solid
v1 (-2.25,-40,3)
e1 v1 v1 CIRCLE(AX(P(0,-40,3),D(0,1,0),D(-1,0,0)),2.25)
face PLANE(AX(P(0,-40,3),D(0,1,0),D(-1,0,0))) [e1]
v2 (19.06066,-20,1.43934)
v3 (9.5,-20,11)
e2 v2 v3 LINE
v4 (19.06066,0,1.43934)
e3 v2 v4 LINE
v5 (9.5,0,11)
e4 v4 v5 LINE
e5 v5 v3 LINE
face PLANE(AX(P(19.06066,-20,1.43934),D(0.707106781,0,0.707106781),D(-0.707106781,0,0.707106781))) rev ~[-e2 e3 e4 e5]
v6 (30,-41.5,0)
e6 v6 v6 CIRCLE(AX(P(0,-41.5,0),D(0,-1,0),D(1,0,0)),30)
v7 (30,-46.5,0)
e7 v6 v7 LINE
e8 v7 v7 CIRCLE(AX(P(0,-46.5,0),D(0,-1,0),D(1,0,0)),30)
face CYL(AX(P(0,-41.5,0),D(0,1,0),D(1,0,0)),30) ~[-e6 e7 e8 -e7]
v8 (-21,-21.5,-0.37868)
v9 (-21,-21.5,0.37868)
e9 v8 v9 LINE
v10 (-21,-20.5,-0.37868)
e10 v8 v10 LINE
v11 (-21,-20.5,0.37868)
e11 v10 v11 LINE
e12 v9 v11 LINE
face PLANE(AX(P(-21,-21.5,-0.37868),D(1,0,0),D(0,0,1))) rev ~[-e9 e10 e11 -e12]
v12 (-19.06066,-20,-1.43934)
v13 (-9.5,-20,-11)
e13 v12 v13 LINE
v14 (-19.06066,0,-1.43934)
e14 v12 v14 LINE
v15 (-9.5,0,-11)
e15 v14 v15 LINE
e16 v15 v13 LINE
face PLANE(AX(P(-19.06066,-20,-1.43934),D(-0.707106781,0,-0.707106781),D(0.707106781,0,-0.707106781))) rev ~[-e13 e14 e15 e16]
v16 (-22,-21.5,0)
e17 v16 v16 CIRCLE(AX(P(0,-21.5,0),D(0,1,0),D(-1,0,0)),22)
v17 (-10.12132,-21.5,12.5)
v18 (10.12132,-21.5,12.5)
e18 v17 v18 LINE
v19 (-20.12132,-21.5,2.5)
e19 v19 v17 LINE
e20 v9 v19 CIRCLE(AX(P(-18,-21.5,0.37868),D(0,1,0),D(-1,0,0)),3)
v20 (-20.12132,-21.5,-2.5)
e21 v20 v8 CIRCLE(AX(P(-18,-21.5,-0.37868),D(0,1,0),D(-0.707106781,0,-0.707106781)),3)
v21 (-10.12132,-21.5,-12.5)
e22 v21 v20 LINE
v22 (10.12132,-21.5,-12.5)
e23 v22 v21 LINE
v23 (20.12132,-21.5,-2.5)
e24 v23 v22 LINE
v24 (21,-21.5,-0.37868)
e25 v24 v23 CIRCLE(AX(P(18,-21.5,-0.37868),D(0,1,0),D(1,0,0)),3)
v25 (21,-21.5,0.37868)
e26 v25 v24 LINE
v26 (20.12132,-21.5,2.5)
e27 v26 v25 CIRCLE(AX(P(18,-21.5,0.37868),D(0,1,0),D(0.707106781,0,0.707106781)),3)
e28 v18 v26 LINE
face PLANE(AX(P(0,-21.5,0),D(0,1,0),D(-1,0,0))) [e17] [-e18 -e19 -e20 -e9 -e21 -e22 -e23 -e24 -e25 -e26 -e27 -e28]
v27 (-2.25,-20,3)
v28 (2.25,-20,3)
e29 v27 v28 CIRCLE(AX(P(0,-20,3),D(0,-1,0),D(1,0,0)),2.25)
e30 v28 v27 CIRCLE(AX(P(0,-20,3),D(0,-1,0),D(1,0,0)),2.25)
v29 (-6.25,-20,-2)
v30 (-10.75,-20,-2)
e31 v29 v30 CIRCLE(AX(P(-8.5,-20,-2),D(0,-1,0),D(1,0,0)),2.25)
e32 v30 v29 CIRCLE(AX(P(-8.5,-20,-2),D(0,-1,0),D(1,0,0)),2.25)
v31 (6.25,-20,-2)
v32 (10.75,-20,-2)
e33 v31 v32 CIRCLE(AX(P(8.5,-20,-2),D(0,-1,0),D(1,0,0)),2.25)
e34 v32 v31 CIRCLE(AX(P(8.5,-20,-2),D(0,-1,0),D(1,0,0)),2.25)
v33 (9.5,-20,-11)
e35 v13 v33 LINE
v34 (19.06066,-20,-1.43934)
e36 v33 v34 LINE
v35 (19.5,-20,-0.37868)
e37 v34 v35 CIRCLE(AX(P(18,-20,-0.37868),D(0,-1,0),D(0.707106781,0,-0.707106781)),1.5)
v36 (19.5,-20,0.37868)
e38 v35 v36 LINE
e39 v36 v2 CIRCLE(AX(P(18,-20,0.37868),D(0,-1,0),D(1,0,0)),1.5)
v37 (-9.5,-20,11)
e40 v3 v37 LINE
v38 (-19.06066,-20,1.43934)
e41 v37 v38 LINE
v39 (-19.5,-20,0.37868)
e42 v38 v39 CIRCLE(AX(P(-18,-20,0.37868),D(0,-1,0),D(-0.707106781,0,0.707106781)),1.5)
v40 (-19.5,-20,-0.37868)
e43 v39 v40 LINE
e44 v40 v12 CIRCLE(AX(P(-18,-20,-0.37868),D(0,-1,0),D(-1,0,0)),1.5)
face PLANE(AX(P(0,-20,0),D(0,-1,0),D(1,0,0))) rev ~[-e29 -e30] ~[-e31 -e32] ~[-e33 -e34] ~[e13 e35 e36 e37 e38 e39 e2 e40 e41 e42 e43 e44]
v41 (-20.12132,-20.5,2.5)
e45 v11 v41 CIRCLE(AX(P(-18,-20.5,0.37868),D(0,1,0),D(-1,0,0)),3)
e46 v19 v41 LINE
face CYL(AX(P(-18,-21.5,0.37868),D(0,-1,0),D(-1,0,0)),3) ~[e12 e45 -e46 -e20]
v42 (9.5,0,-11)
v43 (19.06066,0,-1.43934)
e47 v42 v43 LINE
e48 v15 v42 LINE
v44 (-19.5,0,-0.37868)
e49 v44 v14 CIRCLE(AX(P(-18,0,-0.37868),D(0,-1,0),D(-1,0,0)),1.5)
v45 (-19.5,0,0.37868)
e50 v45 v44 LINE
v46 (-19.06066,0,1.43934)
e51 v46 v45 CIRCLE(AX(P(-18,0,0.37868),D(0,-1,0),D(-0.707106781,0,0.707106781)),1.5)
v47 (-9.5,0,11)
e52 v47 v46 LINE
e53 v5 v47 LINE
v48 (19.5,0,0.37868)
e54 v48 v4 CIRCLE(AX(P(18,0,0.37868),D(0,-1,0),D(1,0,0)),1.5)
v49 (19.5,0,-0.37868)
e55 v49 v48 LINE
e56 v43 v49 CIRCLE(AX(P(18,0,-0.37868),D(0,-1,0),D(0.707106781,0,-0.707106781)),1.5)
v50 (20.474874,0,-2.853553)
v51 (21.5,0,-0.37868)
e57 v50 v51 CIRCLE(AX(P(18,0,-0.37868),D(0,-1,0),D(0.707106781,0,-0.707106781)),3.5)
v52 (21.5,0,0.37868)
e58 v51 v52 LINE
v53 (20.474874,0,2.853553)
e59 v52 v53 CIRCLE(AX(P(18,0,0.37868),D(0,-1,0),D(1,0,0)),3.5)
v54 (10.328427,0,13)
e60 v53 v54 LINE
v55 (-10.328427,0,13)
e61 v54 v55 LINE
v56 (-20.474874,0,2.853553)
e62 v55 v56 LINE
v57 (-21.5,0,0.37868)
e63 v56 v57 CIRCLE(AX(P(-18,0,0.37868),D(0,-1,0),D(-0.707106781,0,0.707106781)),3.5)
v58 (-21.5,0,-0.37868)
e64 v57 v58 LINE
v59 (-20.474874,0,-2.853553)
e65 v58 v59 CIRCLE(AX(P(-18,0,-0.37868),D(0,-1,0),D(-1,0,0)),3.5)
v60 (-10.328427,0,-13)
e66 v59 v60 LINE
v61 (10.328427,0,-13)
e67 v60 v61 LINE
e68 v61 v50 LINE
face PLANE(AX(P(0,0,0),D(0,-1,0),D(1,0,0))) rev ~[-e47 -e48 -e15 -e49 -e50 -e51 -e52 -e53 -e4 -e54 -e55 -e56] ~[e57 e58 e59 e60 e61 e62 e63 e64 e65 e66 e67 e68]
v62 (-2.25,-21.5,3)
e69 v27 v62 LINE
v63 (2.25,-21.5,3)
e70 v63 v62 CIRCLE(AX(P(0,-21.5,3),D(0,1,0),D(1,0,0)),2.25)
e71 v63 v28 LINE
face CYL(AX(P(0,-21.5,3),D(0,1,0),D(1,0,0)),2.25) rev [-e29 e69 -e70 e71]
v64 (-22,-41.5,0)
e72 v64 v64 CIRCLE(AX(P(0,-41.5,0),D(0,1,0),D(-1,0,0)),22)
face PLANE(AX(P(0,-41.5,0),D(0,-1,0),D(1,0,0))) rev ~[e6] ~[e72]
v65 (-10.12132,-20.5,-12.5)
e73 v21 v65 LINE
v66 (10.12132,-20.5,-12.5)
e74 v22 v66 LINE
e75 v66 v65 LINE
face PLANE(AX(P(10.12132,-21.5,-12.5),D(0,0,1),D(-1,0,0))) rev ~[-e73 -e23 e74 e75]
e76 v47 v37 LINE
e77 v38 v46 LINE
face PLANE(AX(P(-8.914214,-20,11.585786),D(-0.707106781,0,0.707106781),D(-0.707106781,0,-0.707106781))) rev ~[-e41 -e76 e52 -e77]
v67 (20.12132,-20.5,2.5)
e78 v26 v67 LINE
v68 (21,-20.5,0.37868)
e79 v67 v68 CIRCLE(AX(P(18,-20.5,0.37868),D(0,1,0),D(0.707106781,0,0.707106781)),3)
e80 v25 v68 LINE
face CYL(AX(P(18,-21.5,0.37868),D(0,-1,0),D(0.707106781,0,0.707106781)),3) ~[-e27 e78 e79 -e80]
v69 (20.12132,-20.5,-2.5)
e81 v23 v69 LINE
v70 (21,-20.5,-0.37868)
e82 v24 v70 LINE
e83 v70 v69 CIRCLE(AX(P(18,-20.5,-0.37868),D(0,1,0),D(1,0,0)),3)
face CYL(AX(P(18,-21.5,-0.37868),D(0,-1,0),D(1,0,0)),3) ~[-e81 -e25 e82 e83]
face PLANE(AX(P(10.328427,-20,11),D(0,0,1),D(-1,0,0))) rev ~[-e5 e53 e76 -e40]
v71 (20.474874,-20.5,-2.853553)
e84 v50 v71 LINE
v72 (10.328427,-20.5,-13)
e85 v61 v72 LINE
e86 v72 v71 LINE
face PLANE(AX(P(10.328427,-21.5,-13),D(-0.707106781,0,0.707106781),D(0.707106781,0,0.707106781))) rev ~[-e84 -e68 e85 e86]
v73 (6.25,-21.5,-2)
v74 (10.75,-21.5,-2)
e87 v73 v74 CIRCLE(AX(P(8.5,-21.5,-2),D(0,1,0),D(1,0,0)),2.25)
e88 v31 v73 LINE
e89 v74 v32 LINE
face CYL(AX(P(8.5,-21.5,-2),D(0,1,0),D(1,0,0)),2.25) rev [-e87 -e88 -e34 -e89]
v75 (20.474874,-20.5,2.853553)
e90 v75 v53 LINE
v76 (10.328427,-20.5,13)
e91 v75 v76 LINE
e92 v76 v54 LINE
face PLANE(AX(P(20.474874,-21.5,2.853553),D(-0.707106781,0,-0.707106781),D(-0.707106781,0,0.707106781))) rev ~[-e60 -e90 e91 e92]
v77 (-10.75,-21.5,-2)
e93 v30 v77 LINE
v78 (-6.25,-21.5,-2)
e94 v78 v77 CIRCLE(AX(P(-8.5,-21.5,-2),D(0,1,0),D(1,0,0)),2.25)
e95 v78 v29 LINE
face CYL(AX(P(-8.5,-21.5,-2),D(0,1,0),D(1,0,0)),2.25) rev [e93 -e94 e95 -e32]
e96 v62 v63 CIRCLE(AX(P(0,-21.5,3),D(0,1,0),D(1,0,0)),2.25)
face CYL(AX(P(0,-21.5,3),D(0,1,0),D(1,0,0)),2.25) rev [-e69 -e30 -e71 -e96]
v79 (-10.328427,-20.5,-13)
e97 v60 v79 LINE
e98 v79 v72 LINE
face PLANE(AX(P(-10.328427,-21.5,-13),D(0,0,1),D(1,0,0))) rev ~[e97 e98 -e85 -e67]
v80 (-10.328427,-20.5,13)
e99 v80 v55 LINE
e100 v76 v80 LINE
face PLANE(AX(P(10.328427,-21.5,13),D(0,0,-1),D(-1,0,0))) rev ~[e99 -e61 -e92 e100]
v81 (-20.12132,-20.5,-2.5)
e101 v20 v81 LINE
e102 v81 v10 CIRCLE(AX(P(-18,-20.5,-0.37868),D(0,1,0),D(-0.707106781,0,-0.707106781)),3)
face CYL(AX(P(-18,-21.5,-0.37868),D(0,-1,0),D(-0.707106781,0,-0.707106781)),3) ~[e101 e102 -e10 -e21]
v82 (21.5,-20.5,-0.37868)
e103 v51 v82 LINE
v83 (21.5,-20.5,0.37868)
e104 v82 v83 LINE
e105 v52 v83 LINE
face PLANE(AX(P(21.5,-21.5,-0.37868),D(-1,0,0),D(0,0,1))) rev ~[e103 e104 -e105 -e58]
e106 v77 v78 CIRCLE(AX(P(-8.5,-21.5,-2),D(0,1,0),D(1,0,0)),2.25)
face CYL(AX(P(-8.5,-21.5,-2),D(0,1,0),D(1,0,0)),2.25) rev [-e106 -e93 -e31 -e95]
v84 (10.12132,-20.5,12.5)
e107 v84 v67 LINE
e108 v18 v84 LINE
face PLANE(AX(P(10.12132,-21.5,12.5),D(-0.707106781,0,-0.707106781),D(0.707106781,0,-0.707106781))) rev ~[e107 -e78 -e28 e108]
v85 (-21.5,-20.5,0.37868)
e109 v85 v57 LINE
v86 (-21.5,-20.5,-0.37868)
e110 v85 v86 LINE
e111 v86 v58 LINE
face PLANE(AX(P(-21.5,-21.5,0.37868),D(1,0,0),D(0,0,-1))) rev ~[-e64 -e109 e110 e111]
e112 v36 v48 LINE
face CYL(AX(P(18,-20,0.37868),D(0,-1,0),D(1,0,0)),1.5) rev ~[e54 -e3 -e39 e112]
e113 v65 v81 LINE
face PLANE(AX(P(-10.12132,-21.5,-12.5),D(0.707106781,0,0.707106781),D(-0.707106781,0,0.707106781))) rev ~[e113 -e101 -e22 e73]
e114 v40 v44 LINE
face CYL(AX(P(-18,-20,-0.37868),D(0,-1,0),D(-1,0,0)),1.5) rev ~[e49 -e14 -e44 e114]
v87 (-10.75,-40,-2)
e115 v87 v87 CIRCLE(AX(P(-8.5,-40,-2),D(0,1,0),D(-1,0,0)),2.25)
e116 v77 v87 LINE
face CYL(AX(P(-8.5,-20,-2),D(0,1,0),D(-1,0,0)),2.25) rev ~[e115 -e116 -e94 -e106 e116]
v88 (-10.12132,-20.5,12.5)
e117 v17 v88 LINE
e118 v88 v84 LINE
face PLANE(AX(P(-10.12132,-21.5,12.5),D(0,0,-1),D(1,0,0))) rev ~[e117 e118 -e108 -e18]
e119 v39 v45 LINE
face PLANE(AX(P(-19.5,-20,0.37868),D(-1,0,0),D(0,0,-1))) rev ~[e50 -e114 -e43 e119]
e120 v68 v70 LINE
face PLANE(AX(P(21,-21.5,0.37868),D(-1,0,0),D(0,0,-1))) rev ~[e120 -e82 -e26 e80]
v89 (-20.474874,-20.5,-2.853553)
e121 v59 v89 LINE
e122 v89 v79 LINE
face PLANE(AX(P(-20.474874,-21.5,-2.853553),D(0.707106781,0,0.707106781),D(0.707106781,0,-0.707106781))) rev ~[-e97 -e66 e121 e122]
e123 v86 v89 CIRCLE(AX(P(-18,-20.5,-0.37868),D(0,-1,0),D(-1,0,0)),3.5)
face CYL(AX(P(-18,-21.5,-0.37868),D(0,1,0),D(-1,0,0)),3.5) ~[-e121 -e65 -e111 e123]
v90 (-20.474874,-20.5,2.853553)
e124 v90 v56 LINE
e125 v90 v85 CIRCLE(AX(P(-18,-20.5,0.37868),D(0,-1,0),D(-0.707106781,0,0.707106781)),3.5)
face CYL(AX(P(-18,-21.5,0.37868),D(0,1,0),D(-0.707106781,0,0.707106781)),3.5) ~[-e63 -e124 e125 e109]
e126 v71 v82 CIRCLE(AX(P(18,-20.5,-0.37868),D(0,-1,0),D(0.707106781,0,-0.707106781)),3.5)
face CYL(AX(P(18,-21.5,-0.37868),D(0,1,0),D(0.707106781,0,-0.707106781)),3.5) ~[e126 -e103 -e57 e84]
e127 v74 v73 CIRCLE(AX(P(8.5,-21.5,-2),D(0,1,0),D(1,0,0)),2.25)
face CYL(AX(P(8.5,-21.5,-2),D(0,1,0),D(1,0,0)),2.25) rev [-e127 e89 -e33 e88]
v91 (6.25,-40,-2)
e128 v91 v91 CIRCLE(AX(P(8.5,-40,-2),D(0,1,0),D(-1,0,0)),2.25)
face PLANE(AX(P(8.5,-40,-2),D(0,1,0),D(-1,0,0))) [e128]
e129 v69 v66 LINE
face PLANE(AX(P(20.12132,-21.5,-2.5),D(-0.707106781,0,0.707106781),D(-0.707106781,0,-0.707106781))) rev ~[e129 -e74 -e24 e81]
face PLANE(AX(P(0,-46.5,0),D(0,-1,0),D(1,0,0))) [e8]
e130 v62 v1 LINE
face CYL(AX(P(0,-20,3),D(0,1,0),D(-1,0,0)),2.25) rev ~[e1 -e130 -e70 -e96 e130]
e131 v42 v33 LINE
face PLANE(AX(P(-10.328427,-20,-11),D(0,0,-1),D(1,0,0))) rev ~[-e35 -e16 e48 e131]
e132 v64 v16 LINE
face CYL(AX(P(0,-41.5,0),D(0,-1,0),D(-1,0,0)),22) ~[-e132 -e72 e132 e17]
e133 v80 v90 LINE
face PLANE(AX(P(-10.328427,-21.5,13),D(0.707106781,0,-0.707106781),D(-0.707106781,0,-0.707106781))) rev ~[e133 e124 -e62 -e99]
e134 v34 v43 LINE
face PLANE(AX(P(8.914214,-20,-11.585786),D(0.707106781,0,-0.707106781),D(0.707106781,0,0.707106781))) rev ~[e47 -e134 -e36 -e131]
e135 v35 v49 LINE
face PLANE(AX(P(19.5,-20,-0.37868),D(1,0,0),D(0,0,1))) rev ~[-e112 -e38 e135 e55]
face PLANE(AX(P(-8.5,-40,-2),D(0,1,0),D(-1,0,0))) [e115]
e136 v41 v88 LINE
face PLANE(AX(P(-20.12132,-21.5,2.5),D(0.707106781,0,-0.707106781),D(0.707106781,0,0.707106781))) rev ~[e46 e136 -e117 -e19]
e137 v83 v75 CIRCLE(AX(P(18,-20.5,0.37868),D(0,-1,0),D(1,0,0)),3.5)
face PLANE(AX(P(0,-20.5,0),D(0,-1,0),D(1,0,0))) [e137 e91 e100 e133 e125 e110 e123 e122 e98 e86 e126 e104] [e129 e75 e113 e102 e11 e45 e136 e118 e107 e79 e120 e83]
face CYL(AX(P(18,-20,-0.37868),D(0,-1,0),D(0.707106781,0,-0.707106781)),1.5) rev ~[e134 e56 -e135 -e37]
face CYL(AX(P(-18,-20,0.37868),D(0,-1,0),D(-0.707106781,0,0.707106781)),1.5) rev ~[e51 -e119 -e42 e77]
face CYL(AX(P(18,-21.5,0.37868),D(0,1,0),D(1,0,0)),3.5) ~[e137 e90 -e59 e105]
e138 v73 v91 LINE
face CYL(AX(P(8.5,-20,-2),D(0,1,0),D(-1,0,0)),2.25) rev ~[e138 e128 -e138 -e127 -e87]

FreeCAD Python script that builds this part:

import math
import FreeCAD as App
import Part
import Sketcher

V = App.Vector
Q = App.Units.Quantity


def edges_at(feature, points):
    """Names of the edges that pass closest to the given points."""
    edges = feature.Shape.Edges
    near = lambda p: min(range(len(edges)), key=lambda i: edges[i].distToShape(Part.Vertex(*p))[0])
    return sorted({f"Edge{near(p) + 1}" for p in points})


def faces_at(feature, points):
    """Names of the faces that lie closest to the given points."""
    faces = feature.Shape.Faces
    near = lambda p: min(range(len(faces)), key=lambda i: faces[i].distToShape(Part.Vertex(*p))[0])
    return sorted({f"Face{near(p) + 1}" for p in points})


def add_polygon(sketch, points):
    """Adds a closed chain of lines whose ends are joined by coincident constraints."""
    first, n = sketch.GeometryCount, len(points)
    for a, b in zip(points, points[1:] + points[:1]):
        sketch.addGeometry(Part.LineSegment(App.Vector(*a, 0), App.Vector(*b, 0)), False)
    for i in range(n):
        sketch.addConstraint(Sketcher.Constraint("Coincident", first + i, 2, first + (i + 1) % n, 1))

doc = App.newDocument("Part")
body = doc.addObject("PartDesign::Body", "Body")

# Sketch on XZ plane
sketch1 = body.newObject("Sketcher::SketchObject", "Sketch")
sketch1.AttachmentSupport = (doc.getObject("XZ_Plane"), [""])
sketch1.MapMode = "FlatFace"
add_polygon(sketch1, [(-20, 11), (-20, -11), (20, -11), (20, 11)])  # lines 0-3
sketch1.addConstraint(Sketcher.Constraint("Vertical", 0))
sketch1.addConstraint(Sketcher.Constraint("Horizontal", 1))
sketch1.addConstraint(Sketcher.Constraint("Vertical", 2))
sketch1.addConstraint(Sketcher.Constraint("Horizontal", 3))
sketch1.addConstraint(Sketcher.Constraint("Symmetric", 0, 2, 2, 2, -1, 1))
sketch1.addConstraint(Sketcher.Constraint("DistanceX", 1, 1, 1, 2, Q("39 mm")))
sketch1.addConstraint(Sketcher.Constraint("DistanceY", 0, 2, 0, 1, Q("22 mm")))
pad1 = body.newObject("PartDesign::Pad", "Pad")
pad1.Profile = sketch1
pad1.Length = 20
doc.recompute()

chamfer = body.newObject("PartDesign::Chamfer", "Chamfer")
chamfer.Base = (pad1, edges_at(pad1, [
    (19.5, -10, 11),
    (-19.5, -10, 11),
    (19.5, -10, -11),
    (-19.5, -10, -11),
]))
chamfer.Size = 10
doc.recompute()

fillet = body.newObject("PartDesign::Fillet", "Fillet")
fillet.Base = (chamfer, edges_at(chamfer, [
    (19.5, -10, -1),
    (-19.5, -10, 1),
    (-19.5, -10, -1),
    (19.5, -10, 1),
]))
fillet.Radius = 1.5

# Sketch on XZ plane
sketch2 = body.newObject("Sketcher::SketchObject", "Sketch001")
sketch2.AttachmentSupport = (doc.getObject("XZ_Plane"), [""])
sketch2.MapMode = "FlatFace"
sketch2.AttachmentOffset = App.Placement(V(0, 0, 20), App.Rotation())
sketch2.addGeometry(Part.ArcOfCircle(Part.Circle(V(-18, 0.4, 0), V(0, 0, 1), 3.5), math.radians(135), math.radians(180)), False)
sketch2.addGeometry(Part.LineSegment(V(-21.5, 0.4, 0), V(-21.5, -0.4, 0)), False)
sketch2.addGeometry(Part.ArcOfCircle(Part.Circle(V(-18, -0.4, 0), V(0, 0, 1), 3.5), math.radians(180), math.radians(225)), False)
sketch2.addGeometry(Part.LineSegment(V(-20.5, -2.9, 0), V(-10.3, -13, 0)), False)
sketch2.addGeometry(Part.LineSegment(V(-10.3, -13, 0), V(10.3, -13, 0)), False)
sketch2.addGeometry(Part.LineSegment(V(10.3, -13, 0), V(20.5, -2.9, 0)), False)
sketch2.addGeometry(Part.ArcOfCircle(Part.Circle(V(18, -0.4, 0), V(0, 0, 1), 3.5), math.radians(-45), math.radians(0)), False)
sketch2.addGeometry(Part.LineSegment(V(21.5, -0.4, 0), V(21.5, 0.4, 0)), False)
sketch2.addGeometry(Part.ArcOfCircle(Part.Circle(V(18, 0.4, 0), V(0, 0, 1), 3.5), math.radians(0), math.radians(45)), False)
sketch2.addGeometry(Part.LineSegment(V(20.5, 2.9, 0), V(10.3, 13, 0)), False)
sketch2.addGeometry(Part.LineSegment(V(10.3, 13, 0), V(-10.3, 13, 0)), False)
sketch2.addGeometry(Part.LineSegment(V(-10.3, 13, 0), V(-20.5, 2.9, 0)), False)
sketch2.addConstraint(Sketcher.Constraint("Tangent", 0, 2, 1, 1))
sketch2.addConstraint(Sketcher.Constraint("Tangent", 1, 2, 2, 1))
sketch2.addConstraint(Sketcher.Constraint("Tangent", 2, 2, 3, 1))
sketch2.addConstraint(Sketcher.Constraint("Coincident", 3, 2, 4, 1))
sketch2.addConstraint(Sketcher.Constraint("Coincident", 4, 2, 5, 1))
sketch2.addConstraint(Sketcher.Constraint("Tangent", 5, 2, 6, 1))
sketch2.addConstraint(Sketcher.Constraint("Tangent", 6, 2, 7, 1))
sketch2.addConstraint(Sketcher.Constraint("Tangent", 7, 2, 8, 1))
sketch2.addConstraint(Sketcher.Constraint("Tangent", 8, 2, 9, 1))
sketch2.addConstraint(Sketcher.Constraint("Coincident", 9, 2, 10, 1))
sketch2.addConstraint(Sketcher.Constraint("Coincident", 10, 2, 11, 1))
sketch2.addConstraint(Sketcher.Constraint("Tangent", 11, 2, 0, 1))
sketch2.addConstraint(Sketcher.Constraint("Vertical", 1))
sketch2.addConstraint(Sketcher.Constraint("Horizontal", 4))
sketch2.addConstraint(Sketcher.Constraint("Vertical", 7))
sketch2.addConstraint(Sketcher.Constraint("Horizontal", 10))
sketch2.addConstraint(Sketcher.Constraint("Equal", 0, 2))
sketch2.addConstraint(Sketcher.Constraint("Equal", 2, 6))
sketch2.addConstraint(Sketcher.Constraint("Equal", 6, 8))
sketch2.addConstraint(Sketcher.Constraint("Symmetric", 0, 3, 6, 3, -1, 1))
sketch2.addConstraint(Sketcher.Constraint("Symmetric", 2, 2, 8, 2, -1, 1))
sketch2.addConstraint(Sketcher.Constraint("Symmetric", 4, 2, 10, 2, -1, 1))
sketch2.addConstraint(Sketcher.Constraint("Symmetric", 2, 2, 5, 2, -2))
sketch2.addConstraint(Sketcher.Constraint("Perpendicular", 3, 5))
sketch2.addConstraint(Sketcher.Constraint("Radius", 0, Q("3.5 mm")))
sketch2.addConstraint(Sketcher.Constraint("DistanceX", 0, 3, -1, 1, Q("18 mm")))
sketch2.addConstraint(Sketcher.Constraint("DistanceY", 3, 2, -1, 1, Q("13 mm")))
sketch2.addConstraint(Sketcher.Constraint("DistanceY", 1, 2, 1, 1, Q("0.757359 mm")))
pad2 = body.newObject("PartDesign::Pad", "Pad001")
pad2.Profile = sketch2
pad2.Type = "UpToLast"
pad2.Reversed = True
doc.recompute()

thickness = body.newObject("PartDesign::Thickness", "Thickness")
thickness.Base = (pad2, faces_at(pad2, [(0, -20, 0), (0, 0, 0)]))
thickness.Value = 2
thickness.Reversed = True
thickness.Join = "Arc"

# Sketch on XZ plane
sketch3 = body.newObject("Sketcher::SketchObject", "Sketch002")
sketch3.AttachmentSupport = (doc.getObject("XZ_Plane"), [""])
sketch3.MapMode = "FlatFace"
sketch3.AttachmentOffset = App.Placement(V(0, 0, 20), App.Rotation())
sketch3.addGeometry(Part.LineSegment(V(10.3, 13, 0), V(-10.3, 13, 0)), False)
sketch3.addGeometry(Part.LineSegment(V(-10.3, 13, 0), V(-20.5, 2.9, 0)), False)
sketch3.addGeometry(Part.ArcOfCircle(Part.Circle(V(-18, 0.4, 0), V(0, 0, 1), 3.5), math.radians(135), math.radians(180)), False)
sketch3.addGeometry(Part.LineSegment(V(-21.5, 0.4, 0), V(-21.5, -0.4, 0)), False)
sketch3.addGeometry(Part.ArcOfCircle(Part.Circle(V(-18, -0.4, 0), V(0, 0, 1), 3.5), math.radians(180), math.radians(225)), False)
sketch3.addGeometry(Part.LineSegment(V(-20.5, -2.9, 0), V(-10.3, -13, 0)), False)
sketch3.addGeometry(Part.LineSegment(V(-10.3, -13, 0), V(10.3, -13, 0)), False)
sketch3.addGeometry(Part.LineSegment(V(10.3, -13, 0), V(20.5, -2.9, 0)), False)
sketch3.addGeometry(Part.ArcOfCircle(Part.Circle(V(18, -0.4, 0), V(0, 0, 1), 3.5), math.radians(-45), math.radians(0)), False)
sketch3.addGeometry(Part.LineSegment(V(21.5, -0.4, 0), V(21.5, 0.4, 0)), False)
sketch3.addGeometry(Part.ArcOfCircle(Part.Circle(V(18, 0.4, 0), V(0, 0, 1), 3.5), math.radians(0), math.radians(45)), False)
sketch3.addGeometry(Part.LineSegment(V(20.5, 2.9, 0), V(10.3, 13, 0)), False)
sketch3.addGeometry(Part.Circle(V(-8.5, -2, 0), V(0, 0, 1), 2.2), False)
sketch3.addGeometry(Part.Circle(V(8.5, -2, 0), V(0, 0, 1), 2.2), False)
sketch3.addGeometry(Part.Circle(V(0, 3, 0), V(0, 0, 1), 2.2), False)
sketch3.addConstraint(Sketcher.Constraint("Coincident", 0, 2, 1, 1))
sketch3.addConstraint(Sketcher.Constraint("Tangent", 1, 2, 2, 1))
sketch3.addConstraint(Sketcher.Constraint("Tangent", 2, 2, 3, 1))
sketch3.addConstraint(Sketcher.Constraint("Tangent", 3, 2, 4, 1))
sketch3.addConstraint(Sketcher.Constraint("Tangent", 4, 2, 5, 1))
sketch3.addConstraint(Sketcher.Constraint("Coincident", 5, 2, 6, 1))
sketch3.addConstraint(Sketcher.Constraint("Coincident", 6, 2, 7, 1))
sketch3.addConstraint(Sketcher.Constraint("Tangent", 7, 2, 8, 1))
sketch3.addConstraint(Sketcher.Constraint("Tangent", 8, 2, 9, 1))
sketch3.addConstraint(Sketcher.Constraint("Tangent", 9, 2, 10, 1))
sketch3.addConstraint(Sketcher.Constraint("Tangent", 10, 2, 11, 1))
sketch3.addConstraint(Sketcher.Constraint("Coincident", 11, 2, 0, 1))
sketch3.addConstraint(Sketcher.Constraint("Horizontal", 0))
sketch3.addConstraint(Sketcher.Constraint("Vertical", 3))
sketch3.addConstraint(Sketcher.Constraint("Horizontal", 6))
sketch3.addConstraint(Sketcher.Constraint("Vertical", 9))
sketch3.addConstraint(Sketcher.Constraint("Equal", 2, 4))
sketch3.addConstraint(Sketcher.Constraint("Equal", 4, 8))
sketch3.addConstraint(Sketcher.Constraint("Equal", 8, 10))
sketch3.addConstraint(Sketcher.Constraint("Equal", 12, 13))
sketch3.addConstraint(Sketcher.Constraint("Equal", 13, 14))
sketch3.addConstraint(Sketcher.Constraint("Symmetric", 2, 3, 8, 3, -1, 1))
sketch3.addConstraint(Sketcher.Constraint("Symmetric", 0, 2, 6, 2, -1, 1))
sketch3.addConstraint(Sketcher.Constraint("Symmetric", 4, 2, 10, 2, -1, 1))
sketch3.addConstraint(Sketcher.Constraint("Symmetric", 12, 3, 13, 3, -2))
sketch3.addConstraint(Sketcher.Constraint("Symmetric", 4, 2, 7, 2, -2))
sketch3.addConstraint(Sketcher.Constraint("PointOnObject", 14, 3, -2))
sketch3.addConstraint(Sketcher.Constraint("Perpendicular", 1, 5))
sketch3.addConstraint(Sketcher.Constraint("Diameter", 12, Q("4.5 mm")))
sketch3.addConstraint(Sketcher.Constraint("Radius", 2, Q("3.5 mm")))
sketch3.addConstraint(Sketcher.Constraint("DistanceX", 2, 3, -1, 1, Q("18 mm")))
sketch3.addConstraint(Sketcher.Constraint("DistanceY", 12, 3, -1, 1, Q("2 mm")))
sketch3.addConstraint(Sketcher.Constraint("DistanceY", -1, 1, 14, 3, Q("3 mm")))
sketch3.addConstraint(Sketcher.Constraint("DistanceY", -1, 1, 0, 2, Q("13 mm")))
sketch3.addConstraint(Sketcher.Constraint("DistanceX", 12, 3, 13, 3, Q("17 mm")))
sketch3.addConstraint(Sketcher.Constraint("DistanceY", 3, 2, 3, 1, Q("0.757359 mm")))
pad3 = body.newObject("PartDesign::Pad", "Pad002")
pad3.Profile = sketch3
pad3.Length = 1.5

# Sketch on XZ plane
sketch4 = body.newObject("Sketcher::SketchObject", "Sketch003")
sketch4.AttachmentSupport = (doc.getObject("XZ_Plane"), [""])
sketch4.MapMode = "FlatFace"
sketch4.AttachmentOffset = App.Placement(V(0, 0, 21.5), App.Rotation())
sketch4.addGeometry(Part.ArcOfCircle(Part.Circle(V(-18, -0.4, 0), V(0, 0, 1), 3.5), math.radians(180), math.radians(225)), False)
sketch4.addGeometry(Part.LineSegment(V(-20.5, -2.9, 0), V(-10.3, -13, 0)), False)
sketch4.addGeometry(Part.LineSegment(V(-10.3, -13, 0), V(10.3, -13, 0)), False)
sketch4.addGeometry(Part.LineSegment(V(10.3, -13, 0), V(20.5, -2.9, 0)), False)
sketch4.addGeometry(Part.ArcOfCircle(Part.Circle(V(18, -0.4, 0), V(0, 0, 1), 3.5), math.radians(-45), math.radians(0)), False)
sketch4.addGeometry(Part.LineSegment(V(21.5, -0.4, 0), V(21.5, 0.4, 0)), False)
sketch4.addGeometry(Part.ArcOfCircle(Part.Circle(V(18, 0.4, 0), V(0, 0, 1), 3.5), math.radians(0), math.radians(45)), False)
sketch4.addGeometry(Part.LineSegment(V(20.5, 2.9, 0), V(10.3, 13, 0)), False)
sketch4.addGeometry(Part.LineSegment(V(10.3, 13, 0), V(-10.3, 13, 0)), False)
sketch4.addGeometry(Part.LineSegment(V(-10.3, 13, 0), V(-20.5, 2.9, 0)), False)
sketch4.addGeometry(Part.ArcOfCircle(Part.Circle(V(-18, 0.4, 0), V(0, 0, 1), 3.5), math.radians(135), math.radians(180)), False)
sketch4.addGeometry(Part.LineSegment(V(-21.5, 0.4, 0), V(-21.5, -0.4, 0)), False)
sketch4.addGeometry(Part.Circle(V(-8.5, -2, 0), V(0, 0, 1), 2.2), False)
sketch4.addGeometry(Part.Circle(V(8.5, -2, 0), V(0, 0, 1), 2.2), False)
sketch4.addGeometry(Part.Circle(V(0, 3, 0), V(0, 0, 1), 2.2), False)
sketch4.addConstraint(Sketcher.Constraint("Tangent", 0, 2, 1, 1))
sketch4.addConstraint(Sketcher.Constraint("Coincident", 1, 2, 2, 1))
sketch4.addConstraint(Sketcher.Constraint("Coincident", 2, 2, 3, 1))
sketch4.addConstraint(Sketcher.Constraint("Tangent", 3, 2, 4, 1))
sketch4.addConstraint(Sketcher.Constraint("Tangent", 4, 2, 5, 1))
sketch4.addConstraint(Sketcher.Constraint("Tangent", 5, 2, 6, 1))
sketch4.addConstraint(Sketcher.Constraint("Tangent", 6, 2, 7, 1))
sketch4.addConstraint(Sketcher.Constraint("Coincident", 7, 2, 8, 1))
sketch4.addConstraint(Sketcher.Constraint("Coincident", 8, 2, 9, 1))
sketch4.addConstraint(Sketcher.Constraint("Tangent", 9, 2, 10, 1))
sketch4.addConstraint(Sketcher.Constraint("Tangent", 10, 2, 11, 1))
sketch4.addConstraint(Sketcher.Constraint("Tangent", 11, 2, 0, 1))
sketch4.addConstraint(Sketcher.Constraint("Horizontal", 2))
sketch4.addConstraint(Sketcher.Constraint("Vertical", 5))
sketch4.addConstraint(Sketcher.Constraint("Horizontal", 8))
sketch4.addConstraint(Sketcher.Constraint("Vertical", 11))
sketch4.addConstraint(Sketcher.Constraint("Equal", 0, 4))
sketch4.addConstraint(Sketcher.Constraint("Equal", 4, 6))
sketch4.addConstraint(Sketcher.Constraint("Equal", 6, 10))
sketch4.addConstraint(Sketcher.Constraint("Equal", 12, 13))
sketch4.addConstraint(Sketcher.Constraint("Equal", 13, 14))
sketch4.addConstraint(Sketcher.Constraint("Symmetric", 0, 3, 6, 3, -1, 1))
sketch4.addConstraint(Sketcher.Constraint("Symmetric", 1, 2, 7, 2, -1, 1))
sketch4.addConstraint(Sketcher.Constraint("Symmetric", 3, 2, 9, 2, -1, 1))
sketch4.addConstraint(Sketcher.Constraint("Symmetric", 12, 3, 13, 3, -2))
sketch4.addConstraint(Sketcher.Constraint("Symmetric", 0, 2, 3, 2, -2))
sketch4.addConstraint(Sketcher.Constraint("PointOnObject", 14, 3, -2))
sketch4.addConstraint(Sketcher.Constraint("Perpendicular", 1, 3))
sketch4.addConstraint(Sketcher.Constraint("Diameter", 12, Q("4.5 mm")))
sketch4.addConstraint(Sketcher.Constraint("Radius", 0, Q("3.5 mm")))
sketch4.addConstraint(Sketcher.Constraint("DistanceX", 0, 3, -1, 1, Q("18 mm")))
sketch4.addConstraint(Sketcher.Constraint("DistanceY", 12, 3, -1, 1, Q("2 mm")))
sketch4.addConstraint(Sketcher.Constraint("DistanceY", -1, 1, 14, 3, Q("3 mm")))
sketch4.addConstraint(Sketcher.Constraint("DistanceY", 1, 2, -1, 1, Q("13 mm")))
sketch4.addConstraint(Sketcher.Constraint("DistanceX", 12, 3, 13, 3, Q("17 mm")))
sketch4.addConstraint(Sketcher.Constraint("DistanceY", 5, 1, 5, 2, Q("0.757359 mm")))
pad4 = body.newObject("PartDesign::Pad", "Pad003")
pad4.Profile = sketch4
pad4.Length = 20

# Sketch on XZ plane
sketch5 = body.newObject("Sketcher::SketchObject", "Sketch004")
sketch5.AttachmentSupport = (doc.getObject("XZ_Plane"), [""])
sketch5.MapMode = "FlatFace"
sketch5.AttachmentOffset = App.Placement(V(0, 0, 21.5), App.Rotation())
sketch5.addGeometry(Part.LineSegment(V(20.5, 2.9, 0), V(10.3, 13, 0)), False)
sketch5.addGeometry(Part.LineSegment(V(10.3, 13, 0), V(-10.3, 13, 0)), False)
sketch5.addGeometry(Part.LineSegment(V(-10.3, 13, 0), V(-20.5, 2.9, 0)), False)
sketch5.addGeometry(Part.ArcOfCircle(Part.Circle(V(-18, 0.4, 0), V(0, 0, 1), 3.5), math.radians(135), math.radians(180)), False)
sketch5.addGeometry(Part.LineSegment(V(-21.5, 0.4, 0), V(-21.5, -0.4, 0)), False)
sketch5.addGeometry(Part.ArcOfCircle(Part.Circle(V(-18, -0.4, 0), V(0, 0, 1), 3.5), math.radians(180), math.radians(225)), False)
sketch5.addGeometry(Part.LineSegment(V(-20.5, -2.9, 0), V(-10.3, -13, 0)), False)
sketch5.addGeometry(Part.LineSegment(V(-10.3, -13, 0), V(10.3, -13, 0)), False)
sketch5.addGeometry(Part.LineSegment(V(10.3, -13, 0), V(20.5, -2.9, 0)), False)
sketch5.addGeometry(Part.ArcOfCircle(Part.Circle(V(18, -0.4, 0), V(0, 0, 1), 3.5), math.radians(-45), math.radians(0)), False)
sketch5.addGeometry(Part.LineSegment(V(21.5, -0.4, 0), V(21.5, 0.4, 0)), False)
sketch5.addGeometry(Part.ArcOfCircle(Part.Circle(V(18, 0.4, 0), V(0, 0, 1), 3.5), math.radians(0), math.radians(45)), False)
sketch5.addGeometry(Part.LineSegment(V(-20.1, 2.5, 0), V(-10.1, 12.5, 0)), False)
sketch5.addGeometry(Part.LineSegment(V(-10.1, 12.5, 0), V(10.1, 12.5, 0)), False)
sketch5.addGeometry(Part.LineSegment(V(10.1, 12.5, 0), V(20.1, 2.5, 0)), False)
sketch5.addGeometry(Part.ArcOfCircle(Part.Circle(V(18, 0.4, 0), V(0, 0, 1), 3), math.radians(0), math.radians(45)), False)
sketch5.addGeometry(Part.LineSegment(V(21, 0.4, 0), V(21, -0.4, 0)), False)
sketch5.addGeometry(Part.ArcOfCircle(Part.Circle(V(18, -0.4, 0), V(0, 0, 1), 3), math.radians(-45), math.radians(0)), False)
sketch5.addGeometry(Part.LineSegment(V(20.1, -2.5, 0), V(10.1, -12.5, 0)), False)
sketch5.addGeometry(Part.LineSegment(V(10.1, -12.5, 0), V(-10.1, -12.5, 0)), False)
sketch5.addGeometry(Part.LineSegment(V(-10.1, -12.5, 0), V(-20.1, -2.5, 0)), False)
sketch5.addGeometry(Part.ArcOfCircle(Part.Circle(V(-18, -0.4, 0), V(0, 0, 1), 3), math.radians(180), math.radians(225)), False)
sketch5.addGeometry(Part.LineSegment(V(-21, -0.4, 0), V(-21, 0.4, 0)), False)
sketch5.addGeometry(Part.ArcOfCircle(Part.Circle(V(-18, 0.4, 0), V(0, 0, 1), 3), math.radians(135), math.radians(180)), False)
sketch5.addConstraint(Sketcher.Constraint("Coincident", 0, 2, 1, 1))
sketch5.addConstraint(Sketcher.Constraint("Coincident", 1, 2, 2, 1))
sketch5.addConstraint(Sketcher.Constraint("Tangent", 2, 2, 3, 1))
sketch5.addConstraint(Sketcher.Constraint("Tangent", 3, 2, 4, 1))
sketch5.addConstraint(Sketcher.Constraint("Tangent", 4, 2, 5, 1))
sketch5.addConstraint(Sketcher.Constraint("Tangent", 5, 2, 6, 1))
sketch5.addConstraint(Sketcher.Constraint("Coincident", 6, 2, 7, 1))
sketch5.addConstraint(Sketcher.Constraint("Coincident", 7, 2, 8, 1))
sketch5.addConstraint(Sketcher.Constraint("Tangent", 8, 2, 9, 1))
sketch5.addConstraint(Sketcher.Constraint("Tangent", 9, 2, 10, 1))
sketch5.addConstraint(Sketcher.Constraint("Tangent", 10, 2, 11, 1))
sketch5.addConstraint(Sketcher.Constraint("Tangent", 11, 2, 0, 1))
sketch5.addConstraint(Sketcher.Constraint("Coincident", 12, 2, 13, 1))
sketch5.addConstraint(Sketcher.Constraint("Coincident", 13, 2, 14, 1))
sketch5.addConstraint(Sketcher.Constraint("Tangent", 14, 2, 15, 2))
sketch5.addConstraint(Sketcher.Constraint("Tangent", 15, 1, 16, 1))
sketch5.addConstraint(Sketcher.Constraint("Tangent", 16, 2, 17, 2))
sketch5.addConstraint(Sketcher.Constraint("Tangent", 17, 1, 18, 1))
sketch5.addConstraint(Sketcher.Constraint("Coincident", 18, 2, 19, 1))
sketch5.addConstraint(Sketcher.Constraint("Coincident", 19, 2, 20, 1))
sketch5.addConstraint(Sketcher.Constraint("Tangent", 20, 2, 21, 2))
sketch5.addConstraint(Sketcher.Constraint("Tangent", 21, 1, 22, 1))
sketch5.addConstraint(Sketcher.Constraint("Tangent", 22, 2, 23, 2))
sketch5.addConstraint(Sketcher.Constraint("Tangent", 23, 1, 12, 1))
sketch5.addConstraint(Sketcher.Constraint("Horizontal", 1))
sketch5.addConstraint(Sketcher.Constraint("Vertical", 4))
sketch5.addConstraint(Sketcher.Constraint("Horizontal", 7))
sketch5.addConstraint(Sketcher.Constraint("Vertical", 10))
sketch5.addConstraint(Sketcher.Constraint("Horizontal", 13))
sketch5.addConstraint(Sketcher.Constraint("Vertical", 16))
sketch5.addConstraint(Sketcher.Constraint("Horizontal", 19))
sketch5.addConstraint(Sketcher.Constraint("Vertical", 22))
sketch5.addConstraint(Sketcher.Constraint("Coincident", 15, 3, 11, 3))
sketch5.addConstraint(Sketcher.Constraint("Coincident", 17, 3, 9, 3))
sketch5.addConstraint(Sketcher.Constraint("Coincident", 21, 3, 5, 3))
sketch5.addConstraint(Sketcher.Constraint("Coincident", 23, 3, 3, 3))
sketch5.addConstraint(Sketcher.Constraint("Equal", 3, 5))
sketch5.addConstraint(Sketcher.Constraint("Equal", 5, 9))
sketch5.addConstraint(Sketcher.Constraint("Equal", 9, 11))
sketch5.addConstraint(Sketcher.Constraint("Equal", 17, 21))
sketch5.addConstraint(Sketcher.Constraint("Symmetric", 3, 3, 9, 3, -1, 1))
sketch5.addConstraint(Sketcher.Constraint("Symmetric", 0, 2, 6, 2, -1, 1))
sketch5.addConstraint(Sketcher.Constraint("Symmetric", 12, 2, 18, 2, -1, 1))
sketch5.addConstraint(Sketcher.Constraint("Symmetric", 14, 2, 20, 2, -1, 1))
sketch5.addConstraint(Sketcher.Constraint("Symmetric", 5, 2, 8, 2, -2))
sketch5.addConstraint(Sketcher.Constraint("Perpendicular", 0, 2))
sketch5.addConstraint(Sketcher.Constraint("Perpendicular", 6, 8))
sketch5.addConstraint(Sketcher.Constraint("Parallel", 8, 12))
sketch5.addConstraint(Sketcher.Constraint("Perpendicular", 12, 14))
sketch5.addConstraint(Sketcher.Constraint("Radius", 15, Q("3 mm")))
sketch5.addConstraint(Sketcher.Constraint("Radius", 3, Q("3.5 mm")))
sketch5.addConstraint(Sketcher.Constraint("DistanceX", 3, 3, -1, 1, Q("18 mm")))
sketch5.addConstraint(Sketcher.Constraint("DistanceY", -1, 1, 0, 2, Q("13 mm")))
sketch5.addConstraint(Sketcher.Constraint("DistanceX", 18, 2, 17, 1, Q("10 mm")))
sketch5.addConstraint(Sketcher.Constraint("DistanceY", -1, 1, 12, 2, Q("12.5 mm")))
pocket1 = body.newObject("PartDesign::Pocket", "Pocket")
pocket1.Profile = sketch5
pocket1.Length = 1

# Sketch on XZ plane
sketch6 = body.newObject("Sketcher::SketchObject", "Sketch005")
sketch6.AttachmentSupport = (doc.getObject("XZ_Plane"), [""])
sketch6.MapMode = "FlatFace"
sketch6.AttachmentOffset = App.Placement(V(0, 0, 41.5), App.Rotation())
sketch6.addGeometry(Part.Circle(V(0, 0, 0), V(0, 0, 1), 30), False)
sketch6.addConstraint(Sketcher.Constraint("Coincident", 0, 3, -1, 1))
sketch6.addConstraint(Sketcher.Constraint("Diameter", 0, Q("60 mm")))
pad5 = body.newObject("PartDesign::Pad", "Pad004")
pad5.Profile = sketch6
pad5.Length = 5

# Sketch on XZ plane
sketch7 = body.newObject("Sketcher::SketchObject", "Sketch006")
sketch7.AttachmentSupport = (doc.getObject("XZ_Plane"), [""])
sketch7.MapMode = "FlatFace"
sketch7.AttachmentOffset = App.Placement(V(0, 0, 41.5), App.Rotation())
sketch7.addGeometry(Part.Circle(V(0, 0, 0), V(0, 0, 1), 22), False)
sketch7.addConstraint(Sketcher.Constraint("Coincident", 0, 3, -1, 1))
sketch7.addConstraint(Sketcher.Constraint("Diameter", 0, Q("44 mm")))
pad6 = body.newObject("PartDesign::Pad", "Pad005")
pad6.Profile = sketch7
pad6.Length = 20
pad6.Reversed = True

# Sketch on XZ plane
sketch8 = body.newObject("Sketcher::SketchObject", "Sketch007")
sketch8.AttachmentSupport = (doc.getObject("XZ_Plane"), [""])
sketch8.MapMode = "FlatFace"
sketch8.AttachmentOffset = App.Placement(V(0, 0, 20), App.Rotation())
sketch8.addGeometry(Part.Circle(V(-8.5, -2, 0), V(0, 0, 1), 2.2), False)
sketch8.addGeometry(Part.Circle(V(0, 3, 0), V(0, 0, 1), 2.2), False)
sketch8.addGeometry(Part.Circle(V(8.5, -2, 0), V(0, 0, 1), 2.2), False)
sketch8.addConstraint(Sketcher.Constraint("Equal", 0, 1))
sketch8.addConstraint(Sketcher.Constraint("Equal", 1, 2))
sketch8.addConstraint(Sketcher.Constraint("Symmetric", 0, 3, 2, 3, -2))
sketch8.addConstraint(Sketcher.Constraint("PointOnObject", 1, 3, -2))
sketch8.addConstraint(Sketcher.Constraint("Diameter", 0, Q("4.5 mm")))
sketch8.addConstraint(Sketcher.Constraint("DistanceY", 0, 3, -1, 1, Q("2 mm")))
sketch8.addConstraint(Sketcher.Constraint("DistanceY", -1, 1, 1, 3, Q("3 mm")))
sketch8.addConstraint(Sketcher.Constraint("DistanceX", 0, 3, 2, 3, Q("17 mm")))
pocket2 = body.newObject("PartDesign::Pocket", "Pocket001")
pocket2.Profile = sketch8
pocket2.Length = 20
pocket2.Reversed = True

doc.recompute()
